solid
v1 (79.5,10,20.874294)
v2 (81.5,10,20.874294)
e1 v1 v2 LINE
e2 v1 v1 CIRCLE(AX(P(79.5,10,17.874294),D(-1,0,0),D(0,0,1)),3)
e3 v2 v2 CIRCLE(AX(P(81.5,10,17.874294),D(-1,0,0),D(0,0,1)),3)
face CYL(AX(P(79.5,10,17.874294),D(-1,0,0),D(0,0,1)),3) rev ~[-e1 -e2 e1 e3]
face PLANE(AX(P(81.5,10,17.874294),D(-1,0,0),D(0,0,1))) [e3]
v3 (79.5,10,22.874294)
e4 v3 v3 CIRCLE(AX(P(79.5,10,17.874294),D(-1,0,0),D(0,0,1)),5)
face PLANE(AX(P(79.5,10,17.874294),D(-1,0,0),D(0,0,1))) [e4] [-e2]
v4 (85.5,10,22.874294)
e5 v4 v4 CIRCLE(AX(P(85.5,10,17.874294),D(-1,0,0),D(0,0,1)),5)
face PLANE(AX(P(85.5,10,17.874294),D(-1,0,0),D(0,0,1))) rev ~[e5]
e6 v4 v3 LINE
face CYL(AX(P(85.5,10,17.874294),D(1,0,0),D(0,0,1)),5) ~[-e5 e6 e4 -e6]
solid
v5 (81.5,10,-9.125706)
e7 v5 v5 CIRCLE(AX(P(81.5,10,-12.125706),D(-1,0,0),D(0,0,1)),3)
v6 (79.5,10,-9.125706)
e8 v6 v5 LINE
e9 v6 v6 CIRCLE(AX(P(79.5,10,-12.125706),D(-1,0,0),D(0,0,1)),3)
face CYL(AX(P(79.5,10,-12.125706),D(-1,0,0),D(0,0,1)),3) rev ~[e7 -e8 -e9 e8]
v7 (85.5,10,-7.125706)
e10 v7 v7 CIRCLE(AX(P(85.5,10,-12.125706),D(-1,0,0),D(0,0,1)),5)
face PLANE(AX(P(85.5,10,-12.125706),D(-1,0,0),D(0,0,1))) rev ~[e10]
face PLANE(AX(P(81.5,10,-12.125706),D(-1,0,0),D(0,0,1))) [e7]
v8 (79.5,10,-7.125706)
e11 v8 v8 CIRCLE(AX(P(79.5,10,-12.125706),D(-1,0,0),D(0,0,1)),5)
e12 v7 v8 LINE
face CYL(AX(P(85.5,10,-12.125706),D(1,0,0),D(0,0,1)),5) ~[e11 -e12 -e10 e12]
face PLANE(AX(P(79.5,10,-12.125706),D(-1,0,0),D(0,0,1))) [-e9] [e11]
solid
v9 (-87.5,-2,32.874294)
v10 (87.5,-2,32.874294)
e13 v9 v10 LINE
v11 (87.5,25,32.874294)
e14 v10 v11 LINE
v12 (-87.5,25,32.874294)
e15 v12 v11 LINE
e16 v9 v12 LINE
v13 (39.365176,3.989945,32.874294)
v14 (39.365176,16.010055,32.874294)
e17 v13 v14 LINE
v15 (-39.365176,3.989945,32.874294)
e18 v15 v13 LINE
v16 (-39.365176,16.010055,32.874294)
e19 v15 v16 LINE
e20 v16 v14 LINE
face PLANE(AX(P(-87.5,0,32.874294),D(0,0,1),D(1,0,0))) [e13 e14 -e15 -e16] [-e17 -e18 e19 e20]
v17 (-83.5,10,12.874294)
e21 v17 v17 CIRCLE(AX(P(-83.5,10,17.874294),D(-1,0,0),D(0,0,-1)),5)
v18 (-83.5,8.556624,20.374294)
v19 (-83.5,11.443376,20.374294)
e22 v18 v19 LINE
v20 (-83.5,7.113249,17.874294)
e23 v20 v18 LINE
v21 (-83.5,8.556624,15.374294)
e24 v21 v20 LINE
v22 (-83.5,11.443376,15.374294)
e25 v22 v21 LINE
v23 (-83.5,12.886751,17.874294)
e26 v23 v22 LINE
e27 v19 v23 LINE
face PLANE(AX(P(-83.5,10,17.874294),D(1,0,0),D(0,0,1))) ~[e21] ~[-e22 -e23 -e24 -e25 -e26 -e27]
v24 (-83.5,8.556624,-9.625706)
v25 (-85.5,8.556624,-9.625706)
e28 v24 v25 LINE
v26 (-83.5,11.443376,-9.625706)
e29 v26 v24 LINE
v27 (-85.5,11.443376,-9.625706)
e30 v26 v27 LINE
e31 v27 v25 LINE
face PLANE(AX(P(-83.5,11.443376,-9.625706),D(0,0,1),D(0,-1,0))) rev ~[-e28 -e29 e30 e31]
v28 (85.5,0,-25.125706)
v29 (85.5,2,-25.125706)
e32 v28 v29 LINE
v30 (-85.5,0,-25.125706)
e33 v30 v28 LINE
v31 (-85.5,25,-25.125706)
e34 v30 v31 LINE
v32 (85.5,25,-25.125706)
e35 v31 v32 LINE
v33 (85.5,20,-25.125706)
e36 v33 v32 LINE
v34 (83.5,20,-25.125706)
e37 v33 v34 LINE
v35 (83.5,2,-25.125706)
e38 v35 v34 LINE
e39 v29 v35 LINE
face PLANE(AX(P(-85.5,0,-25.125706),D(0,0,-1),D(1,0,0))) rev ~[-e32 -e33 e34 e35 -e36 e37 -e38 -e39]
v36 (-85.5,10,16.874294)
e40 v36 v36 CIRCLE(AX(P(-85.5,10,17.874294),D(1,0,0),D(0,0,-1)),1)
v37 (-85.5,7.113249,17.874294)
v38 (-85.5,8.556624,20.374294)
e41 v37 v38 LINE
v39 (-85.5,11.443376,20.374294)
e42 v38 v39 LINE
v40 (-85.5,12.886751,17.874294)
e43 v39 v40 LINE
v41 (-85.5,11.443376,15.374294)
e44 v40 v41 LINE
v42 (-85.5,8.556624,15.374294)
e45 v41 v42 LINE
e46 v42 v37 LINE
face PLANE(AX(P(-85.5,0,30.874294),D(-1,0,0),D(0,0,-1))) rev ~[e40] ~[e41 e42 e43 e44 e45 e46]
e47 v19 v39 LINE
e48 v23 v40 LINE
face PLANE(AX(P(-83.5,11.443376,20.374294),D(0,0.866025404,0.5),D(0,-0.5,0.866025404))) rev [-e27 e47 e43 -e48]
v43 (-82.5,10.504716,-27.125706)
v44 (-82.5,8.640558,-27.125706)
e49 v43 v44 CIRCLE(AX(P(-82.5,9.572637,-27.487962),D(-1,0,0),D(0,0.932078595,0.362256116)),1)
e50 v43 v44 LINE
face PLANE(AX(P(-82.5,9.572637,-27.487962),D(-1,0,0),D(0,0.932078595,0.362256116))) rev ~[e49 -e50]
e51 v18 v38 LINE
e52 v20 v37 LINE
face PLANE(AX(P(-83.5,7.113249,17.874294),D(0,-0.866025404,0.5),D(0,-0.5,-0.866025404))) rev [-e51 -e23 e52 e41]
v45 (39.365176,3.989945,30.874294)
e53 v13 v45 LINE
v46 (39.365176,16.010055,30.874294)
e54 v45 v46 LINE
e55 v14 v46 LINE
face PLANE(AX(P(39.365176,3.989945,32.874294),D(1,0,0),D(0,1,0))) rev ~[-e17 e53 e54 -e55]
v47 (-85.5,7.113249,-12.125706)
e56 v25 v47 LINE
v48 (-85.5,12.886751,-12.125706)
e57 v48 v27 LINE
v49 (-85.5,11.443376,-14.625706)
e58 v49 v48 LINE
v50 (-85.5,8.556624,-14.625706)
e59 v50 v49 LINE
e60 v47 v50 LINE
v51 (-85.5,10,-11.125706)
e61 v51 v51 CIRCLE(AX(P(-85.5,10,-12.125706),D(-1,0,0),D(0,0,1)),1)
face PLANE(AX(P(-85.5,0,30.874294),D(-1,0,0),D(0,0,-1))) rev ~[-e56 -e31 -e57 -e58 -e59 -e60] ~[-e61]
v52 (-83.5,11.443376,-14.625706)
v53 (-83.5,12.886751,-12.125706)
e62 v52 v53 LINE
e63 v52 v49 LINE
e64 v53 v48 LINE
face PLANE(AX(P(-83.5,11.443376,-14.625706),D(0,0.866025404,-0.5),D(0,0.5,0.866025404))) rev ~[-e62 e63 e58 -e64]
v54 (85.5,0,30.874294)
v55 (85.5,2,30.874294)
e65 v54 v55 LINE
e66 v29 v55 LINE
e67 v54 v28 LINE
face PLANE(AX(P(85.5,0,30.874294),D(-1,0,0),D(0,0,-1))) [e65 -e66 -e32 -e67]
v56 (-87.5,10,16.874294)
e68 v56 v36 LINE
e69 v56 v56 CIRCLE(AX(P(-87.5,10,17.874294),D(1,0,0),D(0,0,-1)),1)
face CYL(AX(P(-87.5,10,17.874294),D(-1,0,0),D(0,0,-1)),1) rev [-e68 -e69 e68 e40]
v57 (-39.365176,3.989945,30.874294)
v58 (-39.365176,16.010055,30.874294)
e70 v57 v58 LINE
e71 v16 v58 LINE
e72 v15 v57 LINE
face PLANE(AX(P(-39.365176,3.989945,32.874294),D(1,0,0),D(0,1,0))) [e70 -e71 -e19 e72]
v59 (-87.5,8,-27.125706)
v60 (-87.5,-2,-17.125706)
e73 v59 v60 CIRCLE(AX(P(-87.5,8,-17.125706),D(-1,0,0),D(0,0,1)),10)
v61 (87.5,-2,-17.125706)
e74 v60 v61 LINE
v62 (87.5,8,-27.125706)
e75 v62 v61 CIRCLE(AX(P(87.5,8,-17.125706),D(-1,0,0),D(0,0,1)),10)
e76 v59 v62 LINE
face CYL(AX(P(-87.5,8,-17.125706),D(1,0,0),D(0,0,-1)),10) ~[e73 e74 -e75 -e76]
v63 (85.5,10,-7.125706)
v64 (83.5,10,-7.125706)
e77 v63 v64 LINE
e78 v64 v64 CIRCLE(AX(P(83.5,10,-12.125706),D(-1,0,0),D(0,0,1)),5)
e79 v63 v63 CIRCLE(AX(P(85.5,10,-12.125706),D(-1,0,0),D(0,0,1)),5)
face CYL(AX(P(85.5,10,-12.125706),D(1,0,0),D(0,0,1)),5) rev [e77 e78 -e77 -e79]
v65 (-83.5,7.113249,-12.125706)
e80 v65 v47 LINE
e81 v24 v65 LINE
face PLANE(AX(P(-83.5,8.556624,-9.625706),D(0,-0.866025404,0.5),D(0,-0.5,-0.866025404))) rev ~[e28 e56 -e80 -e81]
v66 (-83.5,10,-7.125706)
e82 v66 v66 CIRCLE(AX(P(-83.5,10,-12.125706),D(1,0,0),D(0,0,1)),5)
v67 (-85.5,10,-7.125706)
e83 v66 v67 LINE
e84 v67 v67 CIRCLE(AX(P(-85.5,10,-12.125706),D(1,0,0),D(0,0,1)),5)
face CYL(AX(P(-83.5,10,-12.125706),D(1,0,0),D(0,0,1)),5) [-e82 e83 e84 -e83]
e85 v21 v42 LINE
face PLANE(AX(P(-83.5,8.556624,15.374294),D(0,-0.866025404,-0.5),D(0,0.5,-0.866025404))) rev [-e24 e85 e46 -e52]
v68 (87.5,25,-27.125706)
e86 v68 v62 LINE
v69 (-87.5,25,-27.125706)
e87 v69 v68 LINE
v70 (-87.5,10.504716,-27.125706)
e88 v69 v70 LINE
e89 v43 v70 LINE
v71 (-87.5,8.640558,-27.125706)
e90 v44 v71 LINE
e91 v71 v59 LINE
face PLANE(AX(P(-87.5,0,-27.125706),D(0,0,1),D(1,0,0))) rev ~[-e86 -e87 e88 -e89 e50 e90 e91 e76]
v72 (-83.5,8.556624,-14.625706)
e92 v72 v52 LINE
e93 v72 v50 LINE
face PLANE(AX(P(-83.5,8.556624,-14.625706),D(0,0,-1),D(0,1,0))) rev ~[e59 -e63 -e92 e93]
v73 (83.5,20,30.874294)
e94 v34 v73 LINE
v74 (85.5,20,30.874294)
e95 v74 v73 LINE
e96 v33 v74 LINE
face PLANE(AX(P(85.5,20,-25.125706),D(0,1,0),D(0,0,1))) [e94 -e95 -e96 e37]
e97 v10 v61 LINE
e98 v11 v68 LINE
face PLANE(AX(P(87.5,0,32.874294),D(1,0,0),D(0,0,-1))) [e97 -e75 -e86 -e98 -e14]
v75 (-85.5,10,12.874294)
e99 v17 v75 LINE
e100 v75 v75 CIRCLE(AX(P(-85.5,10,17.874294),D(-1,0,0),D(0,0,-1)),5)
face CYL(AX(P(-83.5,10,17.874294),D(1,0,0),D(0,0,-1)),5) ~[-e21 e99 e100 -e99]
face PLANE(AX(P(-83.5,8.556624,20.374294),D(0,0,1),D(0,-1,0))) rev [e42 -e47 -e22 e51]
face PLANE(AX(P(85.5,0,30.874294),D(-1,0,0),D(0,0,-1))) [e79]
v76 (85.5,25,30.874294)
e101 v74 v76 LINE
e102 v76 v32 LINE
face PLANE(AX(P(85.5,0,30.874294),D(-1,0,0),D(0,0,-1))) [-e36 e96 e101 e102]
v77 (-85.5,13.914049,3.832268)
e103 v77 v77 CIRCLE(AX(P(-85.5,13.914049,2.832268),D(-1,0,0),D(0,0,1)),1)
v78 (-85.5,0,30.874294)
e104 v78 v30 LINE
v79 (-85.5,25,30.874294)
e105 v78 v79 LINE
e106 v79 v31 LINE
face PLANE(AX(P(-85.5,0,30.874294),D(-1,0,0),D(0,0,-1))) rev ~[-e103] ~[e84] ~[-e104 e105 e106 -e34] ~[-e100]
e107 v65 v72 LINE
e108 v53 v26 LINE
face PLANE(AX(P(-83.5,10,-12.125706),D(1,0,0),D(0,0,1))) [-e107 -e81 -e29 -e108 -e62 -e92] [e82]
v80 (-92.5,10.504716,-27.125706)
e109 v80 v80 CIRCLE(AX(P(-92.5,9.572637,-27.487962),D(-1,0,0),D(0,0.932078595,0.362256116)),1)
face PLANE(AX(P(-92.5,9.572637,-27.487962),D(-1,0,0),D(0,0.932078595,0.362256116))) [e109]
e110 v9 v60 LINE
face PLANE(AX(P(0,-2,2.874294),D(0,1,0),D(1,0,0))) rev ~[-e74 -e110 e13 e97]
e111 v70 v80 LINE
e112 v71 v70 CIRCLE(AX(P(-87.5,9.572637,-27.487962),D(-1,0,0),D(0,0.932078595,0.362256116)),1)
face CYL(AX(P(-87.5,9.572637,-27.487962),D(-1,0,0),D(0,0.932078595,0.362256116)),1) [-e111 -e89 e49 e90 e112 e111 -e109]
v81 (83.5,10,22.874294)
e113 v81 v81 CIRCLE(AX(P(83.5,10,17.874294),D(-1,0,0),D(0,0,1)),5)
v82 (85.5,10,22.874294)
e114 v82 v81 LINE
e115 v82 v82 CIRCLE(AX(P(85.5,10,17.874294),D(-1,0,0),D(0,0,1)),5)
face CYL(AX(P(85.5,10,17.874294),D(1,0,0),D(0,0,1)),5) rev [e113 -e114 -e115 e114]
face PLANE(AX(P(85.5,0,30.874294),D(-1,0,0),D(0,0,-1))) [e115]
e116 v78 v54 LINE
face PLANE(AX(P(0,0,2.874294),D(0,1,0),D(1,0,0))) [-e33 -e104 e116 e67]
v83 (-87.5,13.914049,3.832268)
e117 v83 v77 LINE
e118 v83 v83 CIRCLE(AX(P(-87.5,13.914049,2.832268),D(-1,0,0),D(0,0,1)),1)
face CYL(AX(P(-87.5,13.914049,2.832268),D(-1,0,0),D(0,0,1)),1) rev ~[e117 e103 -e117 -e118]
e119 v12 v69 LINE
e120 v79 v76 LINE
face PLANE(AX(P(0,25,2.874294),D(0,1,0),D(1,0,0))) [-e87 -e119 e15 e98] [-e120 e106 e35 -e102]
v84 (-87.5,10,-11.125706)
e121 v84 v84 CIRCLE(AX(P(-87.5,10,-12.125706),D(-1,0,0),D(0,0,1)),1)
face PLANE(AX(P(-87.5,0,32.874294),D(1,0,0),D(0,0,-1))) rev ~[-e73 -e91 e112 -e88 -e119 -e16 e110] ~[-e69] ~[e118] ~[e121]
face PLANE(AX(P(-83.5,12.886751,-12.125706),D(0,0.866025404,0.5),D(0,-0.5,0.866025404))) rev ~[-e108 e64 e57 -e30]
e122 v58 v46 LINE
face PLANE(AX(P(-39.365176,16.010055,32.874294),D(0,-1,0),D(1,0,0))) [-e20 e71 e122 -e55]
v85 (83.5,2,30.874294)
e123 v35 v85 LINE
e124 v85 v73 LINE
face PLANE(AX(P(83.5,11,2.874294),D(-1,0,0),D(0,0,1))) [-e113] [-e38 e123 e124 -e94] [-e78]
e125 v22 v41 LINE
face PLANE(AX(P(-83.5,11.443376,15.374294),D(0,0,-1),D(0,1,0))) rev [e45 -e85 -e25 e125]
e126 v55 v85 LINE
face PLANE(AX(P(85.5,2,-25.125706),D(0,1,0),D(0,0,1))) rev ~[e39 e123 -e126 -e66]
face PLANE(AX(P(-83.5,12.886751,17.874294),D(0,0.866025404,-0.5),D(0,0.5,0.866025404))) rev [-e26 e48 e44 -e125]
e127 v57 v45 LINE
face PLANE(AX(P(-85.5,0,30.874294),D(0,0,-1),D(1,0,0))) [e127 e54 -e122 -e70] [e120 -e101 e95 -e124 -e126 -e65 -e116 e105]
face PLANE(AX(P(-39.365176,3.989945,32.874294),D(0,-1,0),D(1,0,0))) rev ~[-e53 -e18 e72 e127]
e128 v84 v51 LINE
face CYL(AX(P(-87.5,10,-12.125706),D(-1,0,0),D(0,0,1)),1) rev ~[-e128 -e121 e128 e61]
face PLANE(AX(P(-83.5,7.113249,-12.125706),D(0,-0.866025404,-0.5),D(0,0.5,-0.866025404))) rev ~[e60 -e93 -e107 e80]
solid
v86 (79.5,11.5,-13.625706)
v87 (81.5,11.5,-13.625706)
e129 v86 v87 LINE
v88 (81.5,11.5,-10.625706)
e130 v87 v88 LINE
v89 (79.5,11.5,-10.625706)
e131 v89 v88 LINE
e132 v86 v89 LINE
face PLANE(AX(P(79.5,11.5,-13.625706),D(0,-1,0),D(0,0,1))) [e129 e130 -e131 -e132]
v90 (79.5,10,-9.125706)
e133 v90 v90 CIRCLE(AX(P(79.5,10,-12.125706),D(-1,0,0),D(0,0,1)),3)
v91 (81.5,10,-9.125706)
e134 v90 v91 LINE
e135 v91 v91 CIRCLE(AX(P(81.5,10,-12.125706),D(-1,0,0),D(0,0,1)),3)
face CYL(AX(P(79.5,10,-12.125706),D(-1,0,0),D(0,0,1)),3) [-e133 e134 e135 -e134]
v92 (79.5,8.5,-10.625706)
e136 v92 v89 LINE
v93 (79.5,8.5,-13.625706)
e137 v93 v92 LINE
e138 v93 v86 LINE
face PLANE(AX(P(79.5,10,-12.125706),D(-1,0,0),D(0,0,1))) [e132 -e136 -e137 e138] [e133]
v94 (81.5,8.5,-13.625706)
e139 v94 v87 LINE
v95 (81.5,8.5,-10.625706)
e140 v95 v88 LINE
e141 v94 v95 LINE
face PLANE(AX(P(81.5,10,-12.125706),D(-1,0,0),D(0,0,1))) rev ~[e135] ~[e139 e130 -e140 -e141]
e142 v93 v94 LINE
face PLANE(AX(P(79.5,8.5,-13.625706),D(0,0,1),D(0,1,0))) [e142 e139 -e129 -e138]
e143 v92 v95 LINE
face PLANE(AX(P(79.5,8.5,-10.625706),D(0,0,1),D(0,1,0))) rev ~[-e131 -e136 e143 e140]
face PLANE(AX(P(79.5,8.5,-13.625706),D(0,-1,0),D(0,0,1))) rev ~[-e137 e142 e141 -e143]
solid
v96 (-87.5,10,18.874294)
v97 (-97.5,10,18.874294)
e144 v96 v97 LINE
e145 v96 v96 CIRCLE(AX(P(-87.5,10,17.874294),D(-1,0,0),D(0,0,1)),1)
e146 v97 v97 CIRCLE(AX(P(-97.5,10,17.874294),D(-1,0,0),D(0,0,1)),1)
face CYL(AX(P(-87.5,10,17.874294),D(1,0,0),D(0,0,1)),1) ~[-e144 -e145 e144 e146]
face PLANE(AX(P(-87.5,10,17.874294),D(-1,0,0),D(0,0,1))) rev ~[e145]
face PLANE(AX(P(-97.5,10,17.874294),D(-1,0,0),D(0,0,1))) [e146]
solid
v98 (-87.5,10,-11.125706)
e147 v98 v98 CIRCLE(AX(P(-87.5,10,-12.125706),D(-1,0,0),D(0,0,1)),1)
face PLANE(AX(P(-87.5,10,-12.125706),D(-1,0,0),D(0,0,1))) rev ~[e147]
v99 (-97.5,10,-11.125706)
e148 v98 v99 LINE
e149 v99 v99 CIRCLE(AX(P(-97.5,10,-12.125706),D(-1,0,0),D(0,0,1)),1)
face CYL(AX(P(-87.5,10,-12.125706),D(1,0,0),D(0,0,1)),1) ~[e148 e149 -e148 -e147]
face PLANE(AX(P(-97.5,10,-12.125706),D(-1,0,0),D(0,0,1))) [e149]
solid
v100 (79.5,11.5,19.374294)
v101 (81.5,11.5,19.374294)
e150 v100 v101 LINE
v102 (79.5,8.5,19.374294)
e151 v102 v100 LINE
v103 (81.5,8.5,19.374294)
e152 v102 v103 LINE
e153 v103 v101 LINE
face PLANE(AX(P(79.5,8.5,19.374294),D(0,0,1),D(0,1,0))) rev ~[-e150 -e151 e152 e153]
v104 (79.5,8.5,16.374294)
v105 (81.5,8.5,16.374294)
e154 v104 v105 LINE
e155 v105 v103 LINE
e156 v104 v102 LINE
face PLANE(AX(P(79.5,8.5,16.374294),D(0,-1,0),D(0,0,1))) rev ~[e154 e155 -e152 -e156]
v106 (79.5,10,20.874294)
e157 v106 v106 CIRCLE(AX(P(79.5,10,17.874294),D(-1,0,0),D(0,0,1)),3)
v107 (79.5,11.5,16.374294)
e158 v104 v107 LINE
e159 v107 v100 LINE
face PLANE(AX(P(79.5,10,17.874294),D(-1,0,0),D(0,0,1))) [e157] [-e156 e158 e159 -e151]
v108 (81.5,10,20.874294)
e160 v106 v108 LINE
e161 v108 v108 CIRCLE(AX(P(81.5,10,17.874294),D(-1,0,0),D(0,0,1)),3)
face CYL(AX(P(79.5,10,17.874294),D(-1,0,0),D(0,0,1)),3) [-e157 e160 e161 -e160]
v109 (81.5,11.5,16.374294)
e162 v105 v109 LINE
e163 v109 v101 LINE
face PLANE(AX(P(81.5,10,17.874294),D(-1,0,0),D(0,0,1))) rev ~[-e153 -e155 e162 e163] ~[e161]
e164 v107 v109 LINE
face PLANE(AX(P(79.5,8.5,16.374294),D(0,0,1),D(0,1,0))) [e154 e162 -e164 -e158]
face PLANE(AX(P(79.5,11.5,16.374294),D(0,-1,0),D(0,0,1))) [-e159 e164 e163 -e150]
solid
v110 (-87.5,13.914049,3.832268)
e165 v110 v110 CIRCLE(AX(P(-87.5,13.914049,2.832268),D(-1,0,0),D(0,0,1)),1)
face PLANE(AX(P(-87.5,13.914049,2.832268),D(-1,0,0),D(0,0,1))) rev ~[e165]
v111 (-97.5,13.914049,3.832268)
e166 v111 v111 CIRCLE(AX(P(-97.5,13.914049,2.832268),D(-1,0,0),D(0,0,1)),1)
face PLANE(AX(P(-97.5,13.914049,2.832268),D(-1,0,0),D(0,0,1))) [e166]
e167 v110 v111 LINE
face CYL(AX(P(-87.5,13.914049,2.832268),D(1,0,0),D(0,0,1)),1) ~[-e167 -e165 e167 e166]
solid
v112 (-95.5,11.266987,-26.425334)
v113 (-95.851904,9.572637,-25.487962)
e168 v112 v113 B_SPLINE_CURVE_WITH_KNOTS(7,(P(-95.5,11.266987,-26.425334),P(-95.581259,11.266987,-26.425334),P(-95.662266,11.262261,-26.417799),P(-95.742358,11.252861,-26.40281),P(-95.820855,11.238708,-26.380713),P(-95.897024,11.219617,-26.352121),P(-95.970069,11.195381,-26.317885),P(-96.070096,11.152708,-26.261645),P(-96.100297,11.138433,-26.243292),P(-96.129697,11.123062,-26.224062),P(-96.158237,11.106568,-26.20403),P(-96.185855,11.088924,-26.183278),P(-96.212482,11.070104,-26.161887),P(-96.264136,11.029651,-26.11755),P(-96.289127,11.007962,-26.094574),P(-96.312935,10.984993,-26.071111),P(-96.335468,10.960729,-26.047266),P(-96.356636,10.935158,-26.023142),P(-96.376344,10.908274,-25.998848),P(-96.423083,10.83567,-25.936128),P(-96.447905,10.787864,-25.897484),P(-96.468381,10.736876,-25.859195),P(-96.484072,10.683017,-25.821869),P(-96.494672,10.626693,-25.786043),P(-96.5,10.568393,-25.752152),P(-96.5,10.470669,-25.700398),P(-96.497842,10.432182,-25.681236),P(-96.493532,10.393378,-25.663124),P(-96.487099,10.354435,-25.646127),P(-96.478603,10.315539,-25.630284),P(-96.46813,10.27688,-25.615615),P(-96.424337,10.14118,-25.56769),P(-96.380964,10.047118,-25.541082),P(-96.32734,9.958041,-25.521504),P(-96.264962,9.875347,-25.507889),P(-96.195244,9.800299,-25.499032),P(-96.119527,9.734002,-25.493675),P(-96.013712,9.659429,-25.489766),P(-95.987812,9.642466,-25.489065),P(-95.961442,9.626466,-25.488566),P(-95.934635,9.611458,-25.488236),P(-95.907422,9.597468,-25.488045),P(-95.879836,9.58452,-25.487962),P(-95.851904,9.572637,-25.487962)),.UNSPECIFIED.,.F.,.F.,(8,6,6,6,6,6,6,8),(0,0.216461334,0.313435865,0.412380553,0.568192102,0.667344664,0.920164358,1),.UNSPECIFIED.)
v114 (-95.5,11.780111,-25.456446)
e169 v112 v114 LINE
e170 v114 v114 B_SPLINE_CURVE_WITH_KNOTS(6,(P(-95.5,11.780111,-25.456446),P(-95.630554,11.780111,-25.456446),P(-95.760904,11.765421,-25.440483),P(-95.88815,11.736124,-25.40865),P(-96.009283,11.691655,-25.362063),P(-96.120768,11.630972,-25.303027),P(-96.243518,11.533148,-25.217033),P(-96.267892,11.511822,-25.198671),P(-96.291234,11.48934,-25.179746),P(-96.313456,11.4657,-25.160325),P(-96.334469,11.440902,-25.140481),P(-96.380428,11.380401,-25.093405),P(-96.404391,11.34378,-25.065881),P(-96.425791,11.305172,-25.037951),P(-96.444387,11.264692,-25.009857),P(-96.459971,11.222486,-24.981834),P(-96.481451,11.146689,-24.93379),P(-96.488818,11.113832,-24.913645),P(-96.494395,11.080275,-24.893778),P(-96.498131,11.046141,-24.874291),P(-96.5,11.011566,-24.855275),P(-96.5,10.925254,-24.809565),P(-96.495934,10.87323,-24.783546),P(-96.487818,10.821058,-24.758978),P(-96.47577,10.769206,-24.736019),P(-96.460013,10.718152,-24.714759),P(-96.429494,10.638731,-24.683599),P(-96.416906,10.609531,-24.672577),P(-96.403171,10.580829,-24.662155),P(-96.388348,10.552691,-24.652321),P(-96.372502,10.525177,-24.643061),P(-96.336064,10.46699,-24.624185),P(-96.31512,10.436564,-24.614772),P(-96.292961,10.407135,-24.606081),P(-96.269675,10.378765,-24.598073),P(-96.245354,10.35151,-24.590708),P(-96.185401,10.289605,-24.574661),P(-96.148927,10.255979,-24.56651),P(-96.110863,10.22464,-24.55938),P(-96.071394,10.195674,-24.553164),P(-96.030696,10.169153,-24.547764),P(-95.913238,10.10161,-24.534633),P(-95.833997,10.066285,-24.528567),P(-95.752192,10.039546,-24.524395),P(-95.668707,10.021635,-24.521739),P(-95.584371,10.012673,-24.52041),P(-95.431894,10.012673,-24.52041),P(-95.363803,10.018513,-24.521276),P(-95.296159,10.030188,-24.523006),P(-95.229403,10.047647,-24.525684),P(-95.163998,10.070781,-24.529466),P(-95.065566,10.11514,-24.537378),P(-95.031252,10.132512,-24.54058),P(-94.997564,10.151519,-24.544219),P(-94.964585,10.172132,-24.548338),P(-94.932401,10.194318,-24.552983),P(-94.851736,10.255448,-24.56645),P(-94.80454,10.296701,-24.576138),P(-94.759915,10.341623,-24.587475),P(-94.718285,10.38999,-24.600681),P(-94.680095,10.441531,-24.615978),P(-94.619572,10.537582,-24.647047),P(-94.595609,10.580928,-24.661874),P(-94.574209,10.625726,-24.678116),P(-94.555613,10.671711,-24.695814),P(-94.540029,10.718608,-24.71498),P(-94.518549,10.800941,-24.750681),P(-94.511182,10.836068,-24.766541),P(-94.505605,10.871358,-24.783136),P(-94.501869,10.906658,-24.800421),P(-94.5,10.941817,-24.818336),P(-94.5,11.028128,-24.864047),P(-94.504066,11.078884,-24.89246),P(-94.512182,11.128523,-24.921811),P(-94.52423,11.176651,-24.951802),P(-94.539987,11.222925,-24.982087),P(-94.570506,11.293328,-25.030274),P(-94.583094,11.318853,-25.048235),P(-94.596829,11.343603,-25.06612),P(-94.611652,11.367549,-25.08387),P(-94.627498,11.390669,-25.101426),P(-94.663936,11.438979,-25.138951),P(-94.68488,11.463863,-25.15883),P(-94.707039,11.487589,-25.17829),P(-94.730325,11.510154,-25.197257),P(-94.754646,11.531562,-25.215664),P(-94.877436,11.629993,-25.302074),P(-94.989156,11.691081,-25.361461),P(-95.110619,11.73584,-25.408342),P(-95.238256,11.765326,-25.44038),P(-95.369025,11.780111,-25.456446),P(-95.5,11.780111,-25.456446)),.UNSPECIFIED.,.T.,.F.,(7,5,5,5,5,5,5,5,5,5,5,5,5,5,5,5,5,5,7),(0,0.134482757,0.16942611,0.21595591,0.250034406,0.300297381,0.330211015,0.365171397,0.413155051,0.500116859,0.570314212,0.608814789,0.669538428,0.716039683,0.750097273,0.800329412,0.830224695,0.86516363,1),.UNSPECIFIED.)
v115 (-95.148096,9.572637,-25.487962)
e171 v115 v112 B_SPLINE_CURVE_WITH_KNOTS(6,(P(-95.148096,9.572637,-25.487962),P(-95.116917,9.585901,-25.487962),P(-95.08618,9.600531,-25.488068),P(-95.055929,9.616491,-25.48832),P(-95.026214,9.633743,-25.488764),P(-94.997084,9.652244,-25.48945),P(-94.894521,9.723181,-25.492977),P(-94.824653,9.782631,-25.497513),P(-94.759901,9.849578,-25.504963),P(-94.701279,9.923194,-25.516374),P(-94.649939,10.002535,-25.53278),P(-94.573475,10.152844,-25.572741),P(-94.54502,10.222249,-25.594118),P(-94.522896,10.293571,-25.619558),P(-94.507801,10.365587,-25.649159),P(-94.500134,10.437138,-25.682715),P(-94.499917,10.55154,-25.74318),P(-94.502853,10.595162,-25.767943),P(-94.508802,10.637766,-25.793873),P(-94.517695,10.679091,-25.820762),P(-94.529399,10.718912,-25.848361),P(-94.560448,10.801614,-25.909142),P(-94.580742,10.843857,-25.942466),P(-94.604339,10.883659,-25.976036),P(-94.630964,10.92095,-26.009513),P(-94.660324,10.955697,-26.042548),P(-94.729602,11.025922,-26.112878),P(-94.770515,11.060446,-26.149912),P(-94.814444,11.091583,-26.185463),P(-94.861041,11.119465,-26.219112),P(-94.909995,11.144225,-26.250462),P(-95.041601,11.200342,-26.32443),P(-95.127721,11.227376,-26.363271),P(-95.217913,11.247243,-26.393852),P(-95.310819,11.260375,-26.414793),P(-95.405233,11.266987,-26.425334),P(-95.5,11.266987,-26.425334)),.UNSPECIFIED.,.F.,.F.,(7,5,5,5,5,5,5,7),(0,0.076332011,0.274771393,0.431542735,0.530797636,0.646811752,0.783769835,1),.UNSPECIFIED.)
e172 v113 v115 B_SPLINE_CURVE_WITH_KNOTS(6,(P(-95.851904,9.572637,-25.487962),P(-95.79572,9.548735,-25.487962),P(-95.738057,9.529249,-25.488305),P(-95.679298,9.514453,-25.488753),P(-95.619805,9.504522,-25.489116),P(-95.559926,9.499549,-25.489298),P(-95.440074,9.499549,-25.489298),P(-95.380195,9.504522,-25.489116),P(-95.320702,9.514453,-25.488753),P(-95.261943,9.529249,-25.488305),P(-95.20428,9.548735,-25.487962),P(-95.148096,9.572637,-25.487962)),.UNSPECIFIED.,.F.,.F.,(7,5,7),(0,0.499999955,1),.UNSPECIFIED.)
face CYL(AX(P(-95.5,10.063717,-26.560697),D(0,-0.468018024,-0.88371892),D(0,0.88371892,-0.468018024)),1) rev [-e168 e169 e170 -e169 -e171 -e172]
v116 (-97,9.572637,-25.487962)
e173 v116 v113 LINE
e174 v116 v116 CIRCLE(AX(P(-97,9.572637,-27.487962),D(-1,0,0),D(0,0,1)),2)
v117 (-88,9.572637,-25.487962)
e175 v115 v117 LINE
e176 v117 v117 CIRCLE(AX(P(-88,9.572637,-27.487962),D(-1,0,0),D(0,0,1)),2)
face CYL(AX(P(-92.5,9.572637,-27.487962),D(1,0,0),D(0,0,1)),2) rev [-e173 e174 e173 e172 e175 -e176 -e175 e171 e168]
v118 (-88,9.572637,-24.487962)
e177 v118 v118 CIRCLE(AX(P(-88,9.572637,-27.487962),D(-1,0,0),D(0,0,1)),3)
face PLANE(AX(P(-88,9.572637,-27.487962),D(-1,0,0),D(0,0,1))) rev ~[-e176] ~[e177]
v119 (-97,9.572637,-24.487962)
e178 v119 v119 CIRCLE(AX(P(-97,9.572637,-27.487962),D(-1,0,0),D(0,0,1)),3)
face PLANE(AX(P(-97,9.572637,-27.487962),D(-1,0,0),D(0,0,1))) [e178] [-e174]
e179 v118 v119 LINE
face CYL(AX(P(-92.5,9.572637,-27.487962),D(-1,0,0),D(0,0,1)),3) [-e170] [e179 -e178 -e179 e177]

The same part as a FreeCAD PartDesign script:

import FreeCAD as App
import Part
import Sketcher
Q = App.Units.Quantity


def edges_at(feature, points):
    """Names of the edges that pass closest to the given points."""
    edges = feature.Shape.Edges
    near = lambda p: min(range(len(edges)), key=lambda i: edges[i].distToShape(Part.Vertex(*p))[0])
    return sorted({f"Edge{near(p) + 1}" for p in points})


def add_polygon(sketch, points):
    """Adds a closed chain of lines whose ends are joined by coincident constraints."""
    first, n = sketch.GeometryCount, len(points)
    for a, b in zip(points, points[1:] + points[:1]):
        sketch.addGeometry(Part.LineSegment(App.Vector(*a, 0), App.Vector(*b, 0)), False)
    for i in range(n):
        sketch.addConstraint(Sketcher.Constraint("Coincident", first + i, 2, first + (i + 1) % n, 1))

doc = App.newDocument("Part")
params = doc.addObject("Spreadsheet::Sheet", "Params")
for row, (alias, value) in enumerate([
    ("sketch1_width", "175 mm"),
    ("sketch1_width2", "171 mm"),
    ("sketch1_height", "60 mm"),
    ("sketch1_height2", "56 mm"),
    ("pad1_length", "25 mm"),
    ("sketch2_width", "175 mm"),
    ("sketch2_height", "60 mm"),
    ("pad2_length", "2 mm"),
    ("pocket1_length", "2 mm"),
    ("sketch4_diameter", "10 mm"),
    ("sketch4_width", "18 mm"),
    ("sketch4_height", "56 mm"),
    ("pad3_length", "2 mm"),
    ("sketch5_diameter", "2 mm"),
    ("pocket2_length", "2 mm"),
    ("sketch6_diameter", "10 mm"),
    ("pad4_length", "2 mm"),
    ("sketch7_diameter", "2 mm"),
    ("pocket3_length", "2 mm"),
    ("sketch8_diameter", "2 mm"),
    ("pad5_length", "10 mm"),
    ("fillet_radius", "10 mm"),
    ("sketch9_diameter", "10 mm"),
    ("pad6_length", "6 mm"),
    ("sketch10_diameter", "6 mm"),
    ("pocket4_length", "2 mm"),
    ("sketch11_diameter", "10 mm"),
    ("pad7_length", "6 mm"),
    ("sketch12_diameter", "6 mm"),
    ("pocket5_length", "2 mm"),
    ("sketch13_diameter", "6 mm"),
    ("pad8_length", "2 mm"),
    ("sketch14_width", "3 mm"),
    ("pocket6_length", "2 mm"),
    ("sketch15_diameter", "6 mm"),
    ("sketch15_width", "3 mm"),
    ("pad9_length", "2 mm"),
    ("sketch16_diameter", "6 mm"),
    ("sketch16_diameter2", "4 mm"),
    ("pad10_length", "9 mm"),
    ("sketch17_diameter", "2 mm"),
    ("pocket7_length", "3 mm"),
    ("sketch18_diameter", "2 mm"),
    ("pad11_length", "10 mm"),
    ("sketch19_diameter", "2 mm"),
    ("pad12_length", "10 mm"),
    ("sketch20_diameter", "2 mm"),
    ("pad13_length", "10 mm"),
], start=1):
    params.set(f"A{row}", alias)
    params.set(f"B{row}", "=" + value)
    params.setAlias(f"B{row}", alias)

body = doc.addObject("PartDesign::Body", "Body")

sketch1 = body.newObject("Sketcher::SketchObject", "Sketch")
sketch1.AttachmentSupport = (doc.getObject("XZ_Plane"), [""])
sketch1.MapMode = "FlatFace"
add_polygon(sketch1, [(-88, -27), (-88, 33), (88, 33), (88, -27)])
add_polygon(sketch1, [(86, 31), (-86, 31), (-86, -25), (86, -25)])
sketch1.addConstraint(Sketcher.Constraint("Vertical", 0))
sketch1.addConstraint(Sketcher.Constraint("Horizontal", 1))
sketch1.addConstraint(Sketcher.Constraint("Vertical", 2))
sketch1.addConstraint(Sketcher.Constraint("Horizontal", 3))
sketch1.addConstraint(Sketcher.Constraint("Horizontal", 4))
sketch1.addConstraint(Sketcher.Constraint("Vertical", 5))
sketch1.addConstraint(Sketcher.Constraint("Horizontal", 6))
sketch1.addConstraint(Sketcher.Constraint("Vertical", 7))
sketch1.addConstraint(Sketcher.Constraint("DistanceX", 1, 1, 1, 2, Q("175 mm")))
sketch1.addConstraint(Sketcher.Constraint("DistanceX", 4, 2, 4, 1, Q("171 mm")))
sketch1.addConstraint(Sketcher.Constraint("DistanceY", 0, 1, 0, 2, Q("60 mm")))
sketch1.addConstraint(Sketcher.Constraint("DistanceY", 5, 2, 5, 1, Q("56 mm")))
sketch1.addConstraint(Sketcher.Constraint("DistanceX", 0, 2, 4, 2, Q("2 mm")))
sketch1.addConstraint(Sketcher.Constraint("DistanceY", 4, 2, 0, 2, Q("2 mm")))
sketch1.addConstraint(Sketcher.Constraint("DistanceX", 0, 2, -1, 1, Q("87.5 mm")))
sketch1.addConstraint(Sketcher.Constraint("DistanceY", -1, 1, 0, 2, Q("32.874294 mm")))
sketch1.setExpression("Constraints[16]", "Params.sketch1_width")
sketch1.setExpression("Constraints[17]", "Params.sketch1_width2")
sketch1.setExpression("Constraints[18]", "Params.sketch1_height")
sketch1.setExpression("Constraints[19]", "Params.sketch1_height2")
pad1 = body.newObject("PartDesign::Pad", "Pad")
pad1.Profile = sketch1
pad1.setExpression("Length", "Params.pad1_length")
pad1.Reversed = True

sketch2 = body.newObject("Sketcher::SketchObject", "Sketch001")
sketch2.AttachmentSupport = (doc.getObject("XZ_Plane"), [""])
sketch2.MapMode = "FlatFace"
add_polygon(sketch2, [(-88, -27), (-88, 33), (88, 33), (88, -27)])
sketch2.addConstraint(Sketcher.Constraint("Vertical", 0))
sketch2.addConstraint(Sketcher.Constraint("Horizontal", 1))
sketch2.addConstraint(Sketcher.Constraint("Vertical", 2))
sketch2.addConstraint(Sketcher.Constraint("Horizontal", 3))
sketch2.addConstraint(Sketcher.Constraint("DistanceX", 1, 1, 1, 2, Q("175 mm")))
sketch2.addConstraint(Sketcher.Constraint("DistanceY", 0, 1, 0, 2, Q("60 mm")))
sketch2.addConstraint(Sketcher.Constraint("DistanceX", 0, 2, -1, 1, Q("87.5 mm")))
sketch2.addConstraint(Sketcher.Constraint("DistanceY", -1, 1, 0, 2, Q("32.874294 mm")))
sketch2.setExpression("Constraints[8]", "Params.sketch2_width")
sketch2.setExpression("Constraints[9]", "Params.sketch2_height")
pad2 = body.newObject("PartDesign::Pad", "Pad001")
pad2.Profile = sketch2
pad2.setExpression("Length", "Params.pad2_length")

sketch3 = body.newObject("Sketcher::SketchObject", "Sketch002")
sketch3.AttachmentSupport = (doc.getObject("XY_Plane"), [""])
sketch3.MapMode = "FlatFace"
sketch3.AttachmentOffset = App.Placement(App.Vector(0, 0, 32.874294), App.Rotation())
add_polygon(sketch3, [(-39, 16), (-39, 4), (39, 4), (39, 16)])
sketch3.addConstraint(Sketcher.Constraint("Vertical", 0))
sketch3.addConstraint(Sketcher.Constraint("Horizontal", 1))
sketch3.addConstraint(Sketcher.Constraint("Vertical", 2))
sketch3.addConstraint(Sketcher.Constraint("Horizontal", 3))
sketch3.addConstraint(Sketcher.Constraint("DistanceX", 1, 1, 1, 2, Q("78.730351 mm")))
sketch3.addConstraint(Sketcher.Constraint("DistanceY", 0, 2, 0, 1, Q("12.020109 mm")))
sketch3.addConstraint(Sketcher.Constraint("DistanceX", 0, 2, -1, 1, Q("39.365176 mm")))
sketch3.addConstraint(Sketcher.Constraint("DistanceY", -1, 1, 0, 2, Q("3.989945 mm")))
pocket1 = body.newObject("PartDesign::Pocket", "Pocket")
pocket1.Profile = sketch3
pocket1.setExpression("Length", "Params.pocket1_length")

sketch4 = body.newObject("Sketcher::SketchObject", "Sketch003")
sketch4.AttachmentSupport = (doc.getObject("YZ_Plane"), [""])
sketch4.MapMode = "FlatFace"
sketch4.AttachmentOffset = App.Placement(App.Vector(0, 0, 85.5), App.Rotation())
add_polygon(sketch4, [(20, -25), (2, -25), (2, 31), (20, 31)])
sketch4.addGeometry(Part.Circle(App.Vector(10, -12, 0), App.Vector(0, 0, 1), 5), False)
sketch4.addGeometry(Part.Circle(App.Vector(10, 18, 0), App.Vector(0, 0, 1), 5), False)
sketch4.addConstraint(Sketcher.Constraint("Horizontal", 0))
sketch4.addConstraint(Sketcher.Constraint("Vertical", 1))
sketch4.addConstraint(Sketcher.Constraint("Horizontal", 2))
sketch4.addConstraint(Sketcher.Constraint("Vertical", 3))
sketch4.addConstraint(Sketcher.Constraint("Equal", 4, 5))
sketch4.addConstraint(Sketcher.Constraint("Vertical", 4, 3, 5, 3))
sketch4.addConstraint(Sketcher.Constraint("Diameter", 4, Q("10 mm")))
sketch4.addConstraint(Sketcher.Constraint("DistanceX", 0, 2, 0, 1, Q("18 mm")))
sketch4.addConstraint(Sketcher.Constraint("DistanceY", 1, 1, 1, 2, Q("56 mm")))
sketch4.addConstraint(Sketcher.Constraint("DistanceX", -1, 1, 4, 3, Q("10 mm")))
sketch4.addConstraint(Sketcher.Constraint("DistanceX", -1, 1, 0, 2, Q("2 mm")))
sketch4.addConstraint(Sketcher.Constraint("DistanceY", 4, 3, 5, 3, Q("30 mm")))
sketch4.addConstraint(Sketcher.Constraint("DistanceY", 0, 2, 4, 3, Q("13 mm")))
sketch4.addConstraint(Sketcher.Constraint("DistanceY", 4, 3, -1, 1, Q("12.125706 mm")))
sketch4.setExpression("Constraints[10]", "Params.sketch4_diameter")
sketch4.setExpression("Constraints[11]", "Params.sketch4_width")
sketch4.setExpression("Constraints[12]", "Params.sketch4_height")
pad3 = body.newObject("PartDesign::Pad", "Pad002")
pad3.Profile = sketch4
pad3.setExpression("Length", "Params.pad3_length")
pad3.Reversed = True

sketch5 = body.newObject("Sketcher::SketchObject", "Sketch004")
sketch5.AttachmentSupport = (doc.getObject("YZ_Plane"), [""])
sketch5.MapMode = "FlatFace"
sketch5.AttachmentOffset = App.Placement(App.Vector(0, 0, -87.5), App.Rotation())
sketch5.addGeometry(Part.Circle(App.Vector(10, -12.1, 0), App.Vector(0, 0, 1), 1), False)
sketch5.addConstraint(Sketcher.Constraint("Diameter", 0, Q("2 mm")))
sketch5.addConstraint(Sketcher.Constraint("DistanceX", -1, 1, 0, 3, Q("10 mm")))
sketch5.addConstraint(Sketcher.Constraint("DistanceY", 0, 3, -1, 1, Q("12.125706 mm")))
sketch5.setExpression("Constraints[0]", "Params.sketch5_diameter")
pocket2 = body.newObject("PartDesign::Pocket", "Pocket001")
pocket2.Profile = sketch5
pocket2.setExpression("Length", "Params.pocket2_length")
pocket2.Reversed = True

sketch6 = body.newObject("Sketcher::SketchObject", "Sketch005")
sketch6.AttachmentSupport = (doc.getObject("YZ_Plane"), [""])
sketch6.MapMode = "FlatFace"
sketch6.AttachmentOffset = App.Placement(App.Vector(0, 0, -83.5), App.Rotation())
sketch6.addGeometry(Part.Circle(App.Vector(10, -12.1, 0), App.Vector(0, 0, 1), 5), False)
add_polygon(sketch6, [(11.4, -9.6), (12.9, -12.1), (11.4, -14.6), (8.6, -14.6), (7.1, -12.1), (8.6, -9.6)])
sketch6.addConstraint(Sketcher.Constraint("Horizontal", 3))
sketch6.addConstraint(Sketcher.Constraint("Horizontal", 6))
sketch6.addConstraint(Sketcher.Constraint("Parallel", 1, 4))
sketch6.addConstraint(Sketcher.Constraint("Parallel", 2, 5))
sketch6.addConstraint(Sketcher.Constraint("Horizontal", 0, 3, 1, 2))
sketch6.addConstraint(Sketcher.Constraint("Horizontal", 1, 2, 4, 2))
sketch6.addConstraint(Sketcher.Constraint("Vertical", 3, 2, 5, 2))
sketch6.addConstraint(Sketcher.Constraint("Vertical", 2, 2, 6, 2))
sketch6.addConstraint(Sketcher.Constraint("Diameter", 0, Q("10 mm")))
sketch6.addConstraint(Sketcher.Constraint("Angle", 1, Q("-60 deg")))
sketch6.addConstraint(Sketcher.Constraint("DistanceX", -1, 1, 0, 3, Q("10 mm")))
sketch6.addConstraint(Sketcher.Constraint("DistanceY", 3, 2, 5, 2, Q("5 mm")))
sketch6.addConstraint(Sketcher.Constraint("DistanceX", 3, 2, 3, 1, Q("2.886751 mm")))
sketch6.addConstraint(Sketcher.Constraint("DistanceX", -1, 1, 1, 2, Q("12.886751 mm")))
sketch6.addConstraint(Sketcher.Constraint("DistanceY", 0, 3, -1, 1, Q("12.125706 mm")))
sketch6.setExpression("Constraints[14]", "Params.sketch6_diameter")
pad4 = body.newObject("PartDesign::Pad", "Pad003")
pad4.Profile = sketch6
pad4.setExpression("Length", "Params.pad4_length")
pad4.Reversed = True
doc.recompute()

datumplane = body.newObject("PartDesign::Plane", "DatumPlane")
datumplane.AttachmentSupport = (doc.getObject("XY_Plane"), [""])
datumplane.MapMode = "FlatFace"
datumplane.AttachmentOffset = App.Placement(App.Vector(0, 0, 2.874294), App.Rotation())
mirrored = body.newObject("PartDesign::Mirrored", "Mirrored")
mirrored.Originals = [pocket2, pad4]
mirrored.MirrorPlane = (datumplane, [""])
body.Tip = mirrored

sketch7 = body.newObject("Sketcher::SketchObject", "Sketch006")
sketch7.AttachmentSupport = (doc.getObject("YZ_Plane"), [""])
sketch7.MapMode = "FlatFace"
sketch7.AttachmentOffset = App.Placement(App.Vector(0, 0, -87.5), App.Rotation())
sketch7.addGeometry(Part.Circle(App.Vector(13.9, 2.8, 0), App.Vector(0, 0, 1), 1), False)
sketch7.addConstraint(Sketcher.Constraint("Diameter", 0, Q("2 mm")))
sketch7.addConstraint(Sketcher.Constraint("DistanceX", -1, 1, 0, 3, Q("13.914049 mm")))
sketch7.addConstraint(Sketcher.Constraint("DistanceY", -1, 1, 0, 3, Q("2.832268 mm")))
sketch7.setExpression("Constraints[0]", "Params.sketch7_diameter")
pocket3 = body.newObject("PartDesign::Pocket", "Pocket002")
pocket3.Profile = sketch7
pocket3.setExpression("Length", "Params.pocket3_length")
pocket3.Reversed = True

sketch8 = body.newObject("Sketcher::SketchObject", "Sketch007")
sketch8.AttachmentSupport = (doc.getObject("YZ_Plane"), [""])
sketch8.MapMode = "FlatFace"
sketch8.AttachmentOffset = App.Placement(App.Vector(0, 0, -87.5), App.Rotation())
sketch8.addGeometry(Part.Circle(App.Vector(9.6, -27.5, 0), App.Vector(0, 0, 1), 1), False)
sketch8.addConstraint(Sketcher.Constraint("Diameter", 0, Q("2 mm")))
sketch8.addConstraint(Sketcher.Constraint("DistanceX", -1, 1, 0, 3, Q("9.572637 mm")))
sketch8.addConstraint(Sketcher.Constraint("DistanceY", 0, 3, -1, 1, Q("27.487962 mm")))
sketch8.setExpression("Constraints[0]", "Params.sketch8_diameter")
pad5 = body.newObject("PartDesign::Pad", "Pad004")
pad5.Profile = sketch8
pad5.setExpression("Length", "Params.pad5_length")
pad5.Midplane = True
doc.recompute()

fillet = body.newObject("PartDesign::Fillet", "Fillet")
fillet.Base = (pad5, edges_at(pad5, [(0, -2, -27.126)]))
fillet.setExpression("Radius", "Params.fillet_radius")
body2 = doc.addObject("PartDesign::Body", "Body001")

sketch9 = body2.newObject("Sketcher::SketchObject", "Sketch008")
sketch9.AttachmentSupport = (doc.getObject("YZ_Plane001"), [""])
sketch9.MapMode = "FlatFace"
sketch9.AttachmentOffset = App.Placement(App.Vector(0, 0, 85.5), App.Rotation())
sketch9.addGeometry(Part.Circle(App.Vector(10, 18, 0), App.Vector(0, 0, 1), 5), False)
sketch9.addConstraint(Sketcher.Constraint("Diameter", 0, Q("10 mm")))
sketch9.addConstraint(Sketcher.Constraint("DistanceX", -1, 1, 0, 3, Q("10 mm")))
sketch9.addConstraint(Sketcher.Constraint("DistanceY", -1, 1, 0, 3, Q("17.874294 mm")))
sketch9.setExpression("Constraints[0]", "Params.sketch9_diameter")
pad6 = body2.newObject("PartDesign::Pad", "Pad005")
pad6.Profile = sketch9
pad6.setExpression("Length", "Params.pad6_length")
pad6.Reversed = True

sketch10 = body2.newObject("Sketcher::SketchObject", "Sketch009")
sketch10.AttachmentSupport = (doc.getObject("YZ_Plane001"), [""])
sketch10.MapMode = "FlatFace"
sketch10.AttachmentOffset = App.Placement(App.Vector(0, 0, 79.5), App.Rotation())
sketch10.addGeometry(Part.Circle(App.Vector(10, 17.9, 0), App.Vector(0, 0, 1), 3), False)
sketch10.addConstraint(Sketcher.Constraint("Diameter", 0, Q("6 mm")))
sketch10.addConstraint(Sketcher.Constraint("DistanceX", -1, 1, 0, 3, Q("10 mm")))
sketch10.addConstraint(Sketcher.Constraint("DistanceY", -1, 1, 0, 3, Q("17.874294 mm")))
sketch10.setExpression("Constraints[0]", "Params.sketch10_diameter")
pocket4 = body2.newObject("PartDesign::Pocket", "Pocket003")
pocket4.Profile = sketch10
pocket4.setExpression("Length", "Params.pocket4_length")
pocket4.Reversed = True
body3 = doc.addObject("PartDesign::Body", "Body002")

sketch11 = body3.newObject("Sketcher::SketchObject", "Sketch010")
sketch11.AttachmentSupport = (doc.getObject("YZ_Plane002"), [""])
sketch11.MapMode = "FlatFace"
sketch11.AttachmentOffset = App.Placement(App.Vector(0, 0, 85.5), App.Rotation())
sketch11.addGeometry(Part.Circle(App.Vector(10, -12, 0), App.Vector(0, 0, 1), 5), False)
sketch11.addConstraint(Sketcher.Constraint("Diameter", 0, Q("10 mm")))
sketch11.addConstraint(Sketcher.Constraint("DistanceX", -1, 1, 0, 3, Q("10 mm")))
sketch11.addConstraint(Sketcher.Constraint("DistanceY", 0, 3, -1, 1, Q("12.125706 mm")))
sketch11.setExpression("Constraints[0]", "Params.sketch11_diameter")
pad7 = body3.newObject("PartDesign::Pad", "Pad006")
pad7.Profile = sketch11
pad7.setExpression("Length", "Params.pad7_length")
pad7.Reversed = True

sketch12 = body3.newObject("Sketcher::SketchObject", "Sketch011")
sketch12.AttachmentSupport = (doc.getObject("YZ_Plane002"), [""])
sketch12.MapMode = "FlatFace"
sketch12.AttachmentOffset = App.Placement(App.Vector(0, 0, 79.5), App.Rotation())
sketch12.addGeometry(Part.Circle(App.Vector(10, -12.1, 0), App.Vector(0, 0, 1), 3), False)
sketch12.addConstraint(Sketcher.Constraint("Diameter", 0, Q("6 mm")))
sketch12.addConstraint(Sketcher.Constraint("DistanceX", -1, 1, 0, 3, Q("10 mm")))
sketch12.addConstraint(Sketcher.Constraint("DistanceY", 0, 3, -1, 1, Q("12.125706 mm")))
sketch12.setExpression("Constraints[0]", "Params.sketch12_diameter")
pocket5 = body3.newObject("PartDesign::Pocket", "Pocket004")
pocket5.Profile = sketch12
pocket5.setExpression("Length", "Params.pocket5_length")
pocket5.Reversed = True
body4 = doc.addObject("PartDesign::Body", "Body003")

sketch13 = body4.newObject("Sketcher::SketchObject", "Sketch012")
sketch13.AttachmentSupport = (doc.getObject("YZ_Plane003"), [""])
sketch13.MapMode = "FlatFace"
sketch13.AttachmentOffset = App.Placement(App.Vector(0, 0, 79.5), App.Rotation())
sketch13.addGeometry(Part.Circle(App.Vector(10, -12.1, 0), App.Vector(0, 0, 1), 3), False)
sketch13.addConstraint(Sketcher.Constraint("Diameter", 0, Q("6 mm")))
sketch13.addConstraint(Sketcher.Constraint("DistanceX", -1, 1, 0, 3, Q("10 mm")))
sketch13.addConstraint(Sketcher.Constraint("DistanceY", 0, 3, -1, 1, Q("12.125706 mm")))
sketch13.setExpression("Constraints[0]", "Params.sketch13_diameter")
pad8 = body4.newObject("PartDesign::Pad", "Pad007")
pad8.Profile = sketch13
pad8.setExpression("Length", "Params.pad8_length")

sketch14 = body4.newObject("Sketcher::SketchObject", "Sketch013")
sketch14.AttachmentSupport = (doc.getObject("YZ_Plane003"), [""])
sketch14.MapMode = "FlatFace"
sketch14.AttachmentOffset = App.Placement(App.Vector(0, 0, 79.5), App.Rotation())
add_polygon(sketch14, [(11.5, -13.6), (8.5, -13.6), (8.5, -10.6), (11.5, -10.6)])
sketch14.addConstraint(Sketcher.Constraint("Horizontal", 0))
sketch14.addConstraint(Sketcher.Constraint("Vertical", 1))
sketch14.addConstraint(Sketcher.Constraint("Horizontal", 2))
sketch14.addConstraint(Sketcher.Constraint("Vertical", 3))
sketch14.addConstraint(Sketcher.Constraint("Equal", 2, 1))
sketch14.addConstraint(Sketcher.Constraint("DistanceX", 0, 2, 0, 1, Q("3 mm")))
sketch14.addConstraint(Sketcher.Constraint("DistanceX", -1, 1, 0, 2, Q("8.5 mm")))
sketch14.addConstraint(Sketcher.Constraint("DistanceY", 0, 2, -1, 1, Q("13.625706 mm")))
sketch14.setExpression("Constraints[9]", "Params.sketch14_width")
pocket6 = body4.newObject("PartDesign::Pocket", "Pocket005")
pocket6.Profile = sketch14
pocket6.setExpression("Length", "Params.pocket6_length")
pocket6.Reversed = True
body5 = doc.addObject("PartDesign::Body", "Body004")

sketch15 = body5.newObject("Sketcher::SketchObject", "Sketch014")
sketch15.AttachmentSupport = (doc.getObject("YZ_Plane004"), [""])
sketch15.MapMode = "FlatFace"
sketch15.AttachmentOffset = App.Placement(App.Vector(0, 0, 79.5), App.Rotation())
sketch15.addGeometry(Part.Circle(App.Vector(10, 17.9, 0), App.Vector(0, 0, 1), 3), False)
add_polygon(sketch15, [(8.5, 19.4), (8.5, 16.4), (11.5, 16.4), (11.5, 19.4)])
sketch15.addConstraint(Sketcher.Constraint("Vertical", 1))
sketch15.addConstraint(Sketcher.Constraint("Horizontal", 2))
sketch15.addConstraint(Sketcher.Constraint("Vertical", 3))
sketch15.addConstraint(Sketcher.Constraint("Horizontal", 4))
sketch15.addConstraint(Sketcher.Constraint("Equal", 4, 1))
sketch15.addConstraint(Sketcher.Constraint("Diameter", 0, Q("6 mm")))
sketch15.addConstraint(Sketcher.Constraint("DistanceX", 2, 1, 2, 2, Q("3 mm")))
sketch15.addConstraint(Sketcher.Constraint("DistanceX", -1, 1, 0, 3, Q("10 mm")))
sketch15.addConstraint(Sketcher.Constraint("DistanceX", -1, 1, 1, 2, Q("8.5 mm")))
sketch15.addConstraint(Sketcher.Constraint("DistanceY", 1, 2, 0, 3, Q("1.5 mm")))
sketch15.addConstraint(Sketcher.Constraint("DistanceY", -1, 1, 0, 3, Q("17.874294 mm")))
sketch15.setExpression("Constraints[9]", "Params.sketch15_diameter")
sketch15.setExpression("Constraints[10]", "Params.sketch15_width")
pad9 = body5.newObject("PartDesign::Pad", "Pad008")
pad9.Profile = sketch15
pad9.setExpression("Length", "Params.pad9_length")
body6 = doc.addObject("PartDesign::Body", "Body005")

sketch16 = body6.newObject("Sketcher::SketchObject", "Sketch015")
sketch16.AttachmentSupport = (doc.getObject("YZ_Plane005"), [""])
sketch16.MapMode = "FlatFace"
sketch16.AttachmentOffset = App.Placement(App.Vector(0, 0, -92.5), App.Rotation())
sketch16.addGeometry(Part.Circle(App.Vector(9.6, -27.5, 0), App.Vector(0, 0, 1), 3), False)
sketch16.addGeometry(Part.Circle(App.Vector(9.6, -27.5, 0), App.Vector(0, 0, 1), 2), False)
sketch16.addConstraint(Sketcher.Constraint("Coincident", 1, 3, 0, 3))
sketch16.addConstraint(Sketcher.Constraint("Diameter", 0, Q("6 mm")))
sketch16.addConstraint(Sketcher.Constraint("Diameter", 1, Q("4 mm")))
sketch16.addConstraint(Sketcher.Constraint("DistanceX", -1, 1, 0, 3, Q("9.572637 mm")))
sketch16.addConstraint(Sketcher.Constraint("DistanceY", 0, 3, -1, 1, Q("27.487962 mm")))
sketch16.setExpression("Constraints[1]", "Params.sketch16_diameter")
sketch16.setExpression("Constraints[2]", "Params.sketch16_diameter2")
pad10 = body6.newObject("PartDesign::Pad", "Pad009")
pad10.Profile = sketch16
pad10.setExpression("Length", "Params.pad10_length")
pad10.Midplane = True

sketch17 = body6.newObject("Sketcher::SketchObject", "Sketch016")
sketch17.Placement = App.Placement(App.Vector(0, -8.781043, -16.580502), App.Rotation(App.Vector(1, 0, 0), App.Vector(0, 0.88371892, -0.468018024), App.Vector(0, 0.468018024, 0.88371892), "ZXY"))
sketch17.addGeometry(Part.Circle(App.Vector(-95.5, 21.3, 0), App.Vector(0, 0, 1), 1), False)
sketch17.addConstraint(Sketcher.Constraint("Diameter", 0, Q("2 mm")))
sketch17.addConstraint(Sketcher.Constraint("DistanceX", 0, 3, -1, 1, Q("95.5 mm")))
sketch17.addConstraint(Sketcher.Constraint("DistanceY", -1, 1, 0, 3, Q("21.324382 mm")))
sketch17.setExpression("Constraints[0]", "Params.sketch17_diameter")
pocket7 = body6.newObject("PartDesign::Pocket", "Pocket006")
pocket7.Profile = sketch17
pocket7.setExpression("Length", "Params.pocket7_length")
pocket7.Reversed = True
body7 = doc.addObject("PartDesign::Body", "Body006")

sketch18 = body7.newObject("Sketcher::SketchObject", "Sketch017")
sketch18.AttachmentSupport = (doc.getObject("YZ_Plane006"), [""])
sketch18.MapMode = "FlatFace"
sketch18.AttachmentOffset = App.Placement(App.Vector(0, 0, -87.5), App.Rotation())
sketch18.addGeometry(Part.Circle(App.Vector(10, -12.1, 0), App.Vector(0, 0, 1), 1), False)
sketch18.addConstraint(Sketcher.Constraint("Diameter", 0, Q("2 mm")))
sketch18.addConstraint(Sketcher.Constraint("DistanceX", -1, 1, 0, 3, Q("10 mm")))
sketch18.addConstraint(Sketcher.Constraint("DistanceY", 0, 3, -1, 1, Q("12.125706 mm")))
sketch18.setExpression("Constraints[0]", "Params.sketch18_diameter")
pad11 = body7.newObject("PartDesign::Pad", "Pad010")
pad11.Profile = sketch18
pad11.setExpression("Length", "Params.pad11_length")
pad11.Reversed = True
body8 = doc.addObject("PartDesign::Body", "Body007")

sketch19 = body8.newObject("Sketcher::SketchObject", "Sketch018")
sketch19.AttachmentSupport = (doc.getObject("YZ_Plane007"), [""])
sketch19.MapMode = "FlatFace"
sketch19.AttachmentOffset = App.Placement(App.Vector(0, 0, -87.5), App.Rotation())
sketch19.addGeometry(Part.Circle(App.Vector(13.9, 2.8, 0), App.Vector(0, 0, 1), 1), False)
sketch19.addConstraint(Sketcher.Constraint("Diameter", 0, Q("2 mm")))
sketch19.addConstraint(Sketcher.Constraint("DistanceX", -1, 1, 0, 3, Q("13.914049 mm")))
sketch19.addConstraint(Sketcher.Constraint("DistanceY", -1, 1, 0, 3, Q("2.832268 mm")))
sketch19.setExpression("Constraints[0]", "Params.sketch19_diameter")
pad12 = body8.newObject("PartDesign::Pad", "Pad011")
pad12.Profile = sketch19
pad12.setExpression("Length", "Params.pad12_length")
pad12.Reversed = True
body9 = doc.addObject("PartDesign::Body", "Body008")

sketch20 = body9.newObject("Sketcher::SketchObject", "Sketch019")
sketch20.AttachmentSupport = (doc.getObject("YZ_Plane008"), [""])
sketch20.MapMode = "FlatFace"
sketch20.AttachmentOffset = App.Placement(App.Vector(0, 0, -87.5), App.Rotation())
sketch20.addGeometry(Part.Circle(App.Vector(10, 17.9, 0), App.Vector(0, 0, 1), 1), False)
sketch20.addConstraint(Sketcher.Constraint("Diameter", 0, Q("2 mm")))
sketch20.addConstraint(Sketcher.Constraint("DistanceX", -1, 1, 0, 3, Q("10 mm")))
sketch20.addConstraint(Sketcher.Constraint("DistanceY", -1, 1, 0, 3, Q("17.874294 mm")))
sketch20.setExpression("Constraints[0]", "Params.sketch20_diameter")
pad13 = body9.newObject("PartDesign::Pad", "Pad012")
pad13.Profile = sketch20
pad13.setExpression("Length", "Params.pad13_length")
pad13.Reversed = True

doc.recompute()
